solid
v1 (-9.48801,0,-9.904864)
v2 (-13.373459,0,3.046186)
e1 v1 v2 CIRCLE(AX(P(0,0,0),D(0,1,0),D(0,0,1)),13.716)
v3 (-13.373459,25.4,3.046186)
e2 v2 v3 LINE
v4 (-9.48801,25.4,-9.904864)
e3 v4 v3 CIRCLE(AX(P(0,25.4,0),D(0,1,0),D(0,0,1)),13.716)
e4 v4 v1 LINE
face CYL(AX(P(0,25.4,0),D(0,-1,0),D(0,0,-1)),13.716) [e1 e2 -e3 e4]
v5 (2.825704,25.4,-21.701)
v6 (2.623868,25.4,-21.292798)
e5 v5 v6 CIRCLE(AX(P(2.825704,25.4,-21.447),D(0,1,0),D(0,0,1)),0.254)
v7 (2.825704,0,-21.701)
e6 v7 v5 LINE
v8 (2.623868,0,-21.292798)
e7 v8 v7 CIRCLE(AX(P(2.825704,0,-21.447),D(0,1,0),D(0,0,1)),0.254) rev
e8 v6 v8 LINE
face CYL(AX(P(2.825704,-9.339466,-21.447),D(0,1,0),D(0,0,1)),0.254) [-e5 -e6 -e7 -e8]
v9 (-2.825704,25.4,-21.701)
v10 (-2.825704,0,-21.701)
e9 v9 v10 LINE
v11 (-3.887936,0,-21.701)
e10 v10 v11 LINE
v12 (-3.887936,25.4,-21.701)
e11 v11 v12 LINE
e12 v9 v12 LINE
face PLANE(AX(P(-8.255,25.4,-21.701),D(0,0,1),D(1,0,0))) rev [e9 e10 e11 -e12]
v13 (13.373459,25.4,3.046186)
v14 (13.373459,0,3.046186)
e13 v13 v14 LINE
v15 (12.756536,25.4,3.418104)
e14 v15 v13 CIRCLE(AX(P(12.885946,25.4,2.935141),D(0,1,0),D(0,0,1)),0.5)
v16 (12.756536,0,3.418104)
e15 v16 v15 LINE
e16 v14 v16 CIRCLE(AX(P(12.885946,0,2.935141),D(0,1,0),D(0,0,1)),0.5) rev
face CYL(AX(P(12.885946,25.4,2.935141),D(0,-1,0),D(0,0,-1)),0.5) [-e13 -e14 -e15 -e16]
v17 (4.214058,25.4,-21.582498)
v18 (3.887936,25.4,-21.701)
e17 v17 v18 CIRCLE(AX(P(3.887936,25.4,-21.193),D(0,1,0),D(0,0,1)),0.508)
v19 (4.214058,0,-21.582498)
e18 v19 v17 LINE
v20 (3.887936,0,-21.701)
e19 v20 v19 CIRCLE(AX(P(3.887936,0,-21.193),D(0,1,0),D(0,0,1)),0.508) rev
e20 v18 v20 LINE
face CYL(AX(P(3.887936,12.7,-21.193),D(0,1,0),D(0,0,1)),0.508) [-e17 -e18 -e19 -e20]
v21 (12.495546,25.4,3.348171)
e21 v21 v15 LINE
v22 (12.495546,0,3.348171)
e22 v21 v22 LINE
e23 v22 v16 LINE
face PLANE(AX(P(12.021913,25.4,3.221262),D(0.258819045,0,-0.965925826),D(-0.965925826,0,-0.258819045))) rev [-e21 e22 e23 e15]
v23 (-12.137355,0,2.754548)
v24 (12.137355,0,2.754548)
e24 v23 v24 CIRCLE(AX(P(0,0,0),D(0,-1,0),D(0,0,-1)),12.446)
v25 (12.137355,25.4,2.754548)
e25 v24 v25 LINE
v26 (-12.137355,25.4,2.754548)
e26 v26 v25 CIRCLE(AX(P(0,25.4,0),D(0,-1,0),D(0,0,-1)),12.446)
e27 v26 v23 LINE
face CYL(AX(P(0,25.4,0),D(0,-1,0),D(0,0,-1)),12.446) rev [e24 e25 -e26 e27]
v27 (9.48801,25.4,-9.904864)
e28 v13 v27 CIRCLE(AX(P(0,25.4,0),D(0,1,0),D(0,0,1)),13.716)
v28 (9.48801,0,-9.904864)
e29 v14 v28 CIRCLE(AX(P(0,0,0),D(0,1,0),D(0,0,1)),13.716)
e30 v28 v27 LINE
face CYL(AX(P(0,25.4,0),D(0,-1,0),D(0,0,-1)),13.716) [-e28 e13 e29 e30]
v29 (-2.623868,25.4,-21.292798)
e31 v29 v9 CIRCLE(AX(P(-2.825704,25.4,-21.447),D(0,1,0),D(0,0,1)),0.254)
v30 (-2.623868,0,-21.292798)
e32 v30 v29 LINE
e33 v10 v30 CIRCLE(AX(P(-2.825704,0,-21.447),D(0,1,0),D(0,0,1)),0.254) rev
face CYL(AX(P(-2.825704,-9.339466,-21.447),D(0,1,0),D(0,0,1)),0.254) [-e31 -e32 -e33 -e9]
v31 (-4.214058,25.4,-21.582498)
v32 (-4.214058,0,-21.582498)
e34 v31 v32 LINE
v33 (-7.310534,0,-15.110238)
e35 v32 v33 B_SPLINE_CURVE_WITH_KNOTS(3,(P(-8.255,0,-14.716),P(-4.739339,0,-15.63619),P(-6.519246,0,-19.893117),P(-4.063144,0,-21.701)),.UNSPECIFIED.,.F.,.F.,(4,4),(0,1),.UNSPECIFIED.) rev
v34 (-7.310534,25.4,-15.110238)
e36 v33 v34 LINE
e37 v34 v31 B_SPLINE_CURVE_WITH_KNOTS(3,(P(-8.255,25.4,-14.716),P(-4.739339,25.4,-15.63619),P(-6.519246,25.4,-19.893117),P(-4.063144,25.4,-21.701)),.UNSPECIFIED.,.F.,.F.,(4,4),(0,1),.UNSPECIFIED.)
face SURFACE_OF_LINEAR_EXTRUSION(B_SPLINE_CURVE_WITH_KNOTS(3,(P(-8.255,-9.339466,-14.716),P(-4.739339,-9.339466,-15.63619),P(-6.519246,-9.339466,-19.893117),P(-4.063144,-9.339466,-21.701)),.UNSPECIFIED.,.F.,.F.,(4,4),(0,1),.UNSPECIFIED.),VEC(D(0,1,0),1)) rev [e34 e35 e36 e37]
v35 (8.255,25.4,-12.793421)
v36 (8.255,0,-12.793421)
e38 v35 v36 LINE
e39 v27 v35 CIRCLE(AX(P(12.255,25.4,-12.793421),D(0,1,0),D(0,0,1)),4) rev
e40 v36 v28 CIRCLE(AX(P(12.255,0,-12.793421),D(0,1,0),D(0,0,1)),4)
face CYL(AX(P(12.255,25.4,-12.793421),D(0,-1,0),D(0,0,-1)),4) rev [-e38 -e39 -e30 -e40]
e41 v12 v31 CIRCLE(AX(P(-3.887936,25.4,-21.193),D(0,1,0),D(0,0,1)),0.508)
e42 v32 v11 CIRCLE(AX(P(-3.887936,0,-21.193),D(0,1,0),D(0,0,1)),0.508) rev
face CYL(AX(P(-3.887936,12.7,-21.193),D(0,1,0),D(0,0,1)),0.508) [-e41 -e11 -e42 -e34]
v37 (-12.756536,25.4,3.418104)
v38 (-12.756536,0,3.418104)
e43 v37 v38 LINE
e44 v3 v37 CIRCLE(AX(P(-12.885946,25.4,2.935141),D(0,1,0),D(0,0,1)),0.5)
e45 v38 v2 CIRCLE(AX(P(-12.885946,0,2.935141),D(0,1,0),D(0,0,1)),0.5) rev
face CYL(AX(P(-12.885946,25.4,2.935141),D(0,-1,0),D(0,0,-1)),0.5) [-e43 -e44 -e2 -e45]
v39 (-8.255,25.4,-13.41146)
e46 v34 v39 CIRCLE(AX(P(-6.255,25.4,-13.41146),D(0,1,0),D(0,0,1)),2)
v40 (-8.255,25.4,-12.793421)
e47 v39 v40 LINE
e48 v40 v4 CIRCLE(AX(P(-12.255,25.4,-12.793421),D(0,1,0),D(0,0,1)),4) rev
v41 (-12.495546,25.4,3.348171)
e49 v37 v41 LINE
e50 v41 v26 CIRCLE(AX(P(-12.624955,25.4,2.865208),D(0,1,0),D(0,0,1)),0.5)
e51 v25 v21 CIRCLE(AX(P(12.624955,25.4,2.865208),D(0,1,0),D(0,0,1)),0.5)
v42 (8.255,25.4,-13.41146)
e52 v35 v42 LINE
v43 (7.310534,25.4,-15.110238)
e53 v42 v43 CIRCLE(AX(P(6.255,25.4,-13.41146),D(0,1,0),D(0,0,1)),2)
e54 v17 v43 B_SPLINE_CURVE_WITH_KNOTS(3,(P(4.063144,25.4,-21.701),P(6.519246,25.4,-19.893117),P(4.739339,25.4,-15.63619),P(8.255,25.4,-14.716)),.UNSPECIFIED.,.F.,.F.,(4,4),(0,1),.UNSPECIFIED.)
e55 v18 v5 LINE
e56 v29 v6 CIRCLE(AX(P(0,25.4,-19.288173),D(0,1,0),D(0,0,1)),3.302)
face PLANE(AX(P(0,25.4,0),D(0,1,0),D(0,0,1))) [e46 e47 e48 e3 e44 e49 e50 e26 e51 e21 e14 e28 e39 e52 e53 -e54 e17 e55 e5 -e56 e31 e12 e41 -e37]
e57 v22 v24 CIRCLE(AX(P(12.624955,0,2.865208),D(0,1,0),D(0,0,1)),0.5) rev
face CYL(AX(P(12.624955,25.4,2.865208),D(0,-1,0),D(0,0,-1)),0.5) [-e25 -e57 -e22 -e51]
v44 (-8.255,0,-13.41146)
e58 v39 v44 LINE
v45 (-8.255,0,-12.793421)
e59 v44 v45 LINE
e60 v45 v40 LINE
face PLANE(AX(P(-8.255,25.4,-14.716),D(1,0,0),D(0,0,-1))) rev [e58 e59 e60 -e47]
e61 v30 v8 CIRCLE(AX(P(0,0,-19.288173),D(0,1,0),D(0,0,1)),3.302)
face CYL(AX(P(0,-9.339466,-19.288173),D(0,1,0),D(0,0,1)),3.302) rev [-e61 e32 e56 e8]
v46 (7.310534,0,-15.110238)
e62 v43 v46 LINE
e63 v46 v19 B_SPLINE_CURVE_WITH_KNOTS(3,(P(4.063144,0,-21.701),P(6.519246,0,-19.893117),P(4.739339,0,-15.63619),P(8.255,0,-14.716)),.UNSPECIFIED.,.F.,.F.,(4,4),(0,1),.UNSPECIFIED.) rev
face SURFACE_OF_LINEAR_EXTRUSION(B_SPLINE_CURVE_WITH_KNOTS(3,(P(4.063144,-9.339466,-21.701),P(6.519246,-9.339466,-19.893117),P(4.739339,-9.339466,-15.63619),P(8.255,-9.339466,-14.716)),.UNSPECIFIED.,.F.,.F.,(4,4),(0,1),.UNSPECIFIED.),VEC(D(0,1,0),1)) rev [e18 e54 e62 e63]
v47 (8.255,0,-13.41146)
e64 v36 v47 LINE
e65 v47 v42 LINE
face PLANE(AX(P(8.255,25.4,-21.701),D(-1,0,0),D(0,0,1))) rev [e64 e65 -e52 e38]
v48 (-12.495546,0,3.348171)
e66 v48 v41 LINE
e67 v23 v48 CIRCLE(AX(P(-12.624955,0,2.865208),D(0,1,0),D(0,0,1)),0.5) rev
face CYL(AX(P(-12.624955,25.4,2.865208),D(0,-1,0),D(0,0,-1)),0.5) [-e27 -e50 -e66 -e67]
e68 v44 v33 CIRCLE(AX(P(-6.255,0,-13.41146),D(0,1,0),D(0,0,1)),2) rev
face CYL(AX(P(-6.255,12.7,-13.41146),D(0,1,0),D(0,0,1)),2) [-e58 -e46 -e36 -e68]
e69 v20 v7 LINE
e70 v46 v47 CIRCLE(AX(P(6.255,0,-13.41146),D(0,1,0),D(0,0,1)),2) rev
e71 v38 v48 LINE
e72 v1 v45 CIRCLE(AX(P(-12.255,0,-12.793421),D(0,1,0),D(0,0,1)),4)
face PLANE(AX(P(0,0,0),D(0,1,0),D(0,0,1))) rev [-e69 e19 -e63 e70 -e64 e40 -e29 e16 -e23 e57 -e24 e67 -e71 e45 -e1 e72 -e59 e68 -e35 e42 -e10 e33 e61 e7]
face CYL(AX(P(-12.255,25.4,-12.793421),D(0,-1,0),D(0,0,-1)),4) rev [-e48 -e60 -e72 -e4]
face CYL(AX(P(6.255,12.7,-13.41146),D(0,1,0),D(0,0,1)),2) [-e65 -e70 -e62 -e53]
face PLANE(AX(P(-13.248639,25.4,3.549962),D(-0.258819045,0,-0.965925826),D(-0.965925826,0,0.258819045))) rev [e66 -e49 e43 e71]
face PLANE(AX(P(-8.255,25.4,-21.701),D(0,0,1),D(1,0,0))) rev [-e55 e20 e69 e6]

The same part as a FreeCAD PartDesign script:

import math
import FreeCAD as App
import Part
import Sketcher
from FreeCAD import Vector
Q = App.Units.Quantity


def edges_at(feature, points):
    """Names of the edges that pass closest to the given points."""
    edges = feature.Shape.Edges
    near = lambda p: min(range(len(edges)), key=lambda i: edges[i].distToShape(Part.Vertex(*p))[0])
    return sorted({f"Edge{near(p) + 1}" for p in points})

doc = App.newDocument("Part")
body = doc.addObject("PartDesign::Body", "Body")

sketch1 = body.newObject("Sketcher::SketchObject", "Sketch")
sketch1.AttachmentSupport = (doc.getObject("XZ_Plane"), [""])
sketch1.MapMode = "FlatFace"
sketch1.addGeometry([
    Part.LineSegment(Vector(-13.2, 3.5, 0), Vector(-12, 3.2, 0)),
    Part.ArcOfCircle(Part.Circle(Vector(0, 0, 0), Vector(0, 0, 1), 12.4), math.radians(165), math.radians(375)),
    Part.LineSegment(Vector(12, 3.2, 0), Vector(13.2, 3.5, 0)),
    Part.ArcOfCircle(Part.Circle(Vector(0, 0, 0), Vector(0, 0, 1), 13.7), math.radians(-53), math.radians(15)),
    Part.LineSegment(Vector(8.3, -11, 0), Vector(8.3, -21.7, 0)),
    Part.LineSegment(Vector(8.3, -21.7, 0), Vector(-8.3, -21.7, 0)),
    Part.LineSegment(Vector(-8.3, -21.7, 0), Vector(-8.3, -11, 0)),
    Part.ArcOfCircle(Part.Circle(Vector(0, 0, 0), Vector(0, 0, 1), 13.7), math.radians(165), math.radians(233)),
], False)
sketch1.addConstraint([
    Sketcher.Constraint("Coincident", 0, 2, 1, 1),
    Sketcher.Constraint("Coincident", 1, 2, 2, 1),
    Sketcher.Constraint("Coincident", 2, 2, 3, 2),
    Sketcher.Constraint("Coincident", 3, 1, 4, 1),
    Sketcher.Constraint("Coincident", 4, 2, 5, 1),
    Sketcher.Constraint("Coincident", 5, 2, 6, 1),
    Sketcher.Constraint("Coincident", 6, 2, 7, 2),
    Sketcher.Constraint("Coincident", 7, 1, 0, 1),
    Sketcher.Constraint("Vertical", 4),
    Sketcher.Constraint("Horizontal", 5),
    Sketcher.Constraint("Vertical", 6),
    Sketcher.Constraint("Coincident", 1, 3, -1, 1),
    Sketcher.Constraint("Coincident", 3, 3, -1, 1),
    Sketcher.Constraint("Coincident", 7, 3, -1, 1),
    Sketcher.Constraint("Equal", 3, 7),
    Sketcher.Constraint("Horizontal", 0, 2, 1, 2),
    Sketcher.Constraint("Horizontal", 3, 1, 6, 2),
    Sketcher.Constraint("Horizontal", 2, 2, 7, 1),
    Sketcher.Constraint("Radius", 1, Q("0.49 in")),
    Sketcher.Constraint("Radius", 3, Q("0.54 in")),
    Sketcher.Constraint("Angle", 0, Q("-15 deg")),
    Sketcher.Constraint("DistanceX", 5, 2, 5, 1, Q("0.65 in")),
    Sketcher.Constraint("DistanceX", -1, 1, 2, 2, Q("0.5215999 in")),
    Sketcher.Constraint("DistanceY", 4, 2, -1, 1, Q("21.701 mm")),
])
pad1 = body.newObject("PartDesign::Pad", "Pad")
pad1.Profile = sketch1
pad1.Length = Q("1 in")
pad1.Reversed = True

sketch2 = body.newObject("Sketcher::SketchObject", "Sketch001")
sketch2.AttachmentSupport = (doc.getObject("XZ_Plane"), [""])
sketch2.MapMode = "FlatFace"
sketch2.AttachmentOffset = App.Placement(Vector(0, 0, -1 * 25.4), App.Rotation())
sketch2.addGeometry([
    Part.Circle(Vector(0, -19.288173, 0), Vector(0, 0, 1), 3.302),
    Part.LineSegment(Vector(-8.255, -21.701, 0), Vector(-8.255, -14.716, 0)),
    Part.BSplineCurve([Vector(-8.255, -14.716, 0), Vector(-4.739339, -15.63619, 0), Vector(-6.519246, -19.893117, 0), Vector(-4.063144, -21.701, 0)], [4, 4], [0, 1], False, 3, [1, 1, 1, 1], False),
    Part.LineSegment(Vector(-4.063144, -21.701, 0), Vector(-8.255, -21.701, 0)),
    Part.LineSegment(Vector(8.255, -14.716, 0), Vector(8.255, -21.701, 0)),
    Part.LineSegment(Vector(8.255, -21.701, 0), Vector(4.063144, -21.701, 0)),
    Part.BSplineCurve([Vector(8.255, -14.716, 0), Vector(4.739339, -15.63619, 0), Vector(6.519246, -19.893117, 0), Vector(4.063144, -21.701, 0)], [4, 4], [0, 1], False, 3, [1, 1, 1, 1], False),
], False)
sketch2.addConstraint([
    Sketcher.Constraint("Block", 2),
    Sketcher.Constraint("Block", 6),
    Sketcher.Constraint("Coincident", 1, 2, 2, 1),
    Sketcher.Constraint("Coincident", 2, 2, 3, 1),
    Sketcher.Constraint("Coincident", 3, 2, 1, 1),
    Sketcher.Constraint("Coincident", 4, 2, 5, 1),
    Sketcher.Constraint("Coincident", 5, 2, 6, 2),
    Sketcher.Constraint("Coincident", 6, 1, 4, 1),
    Sketcher.Constraint("Vertical", 1),
    Sketcher.Constraint("Horizontal", 3),
    Sketcher.Constraint("Vertical", 4),
    Sketcher.Constraint("Horizontal", 5),
    Sketcher.Constraint("PointOnObject", 0, 3, -2),
    Sketcher.Constraint("Diameter", 0, Q("0.26 in")),
    Sketcher.Constraint("DistanceY", 0, 3, -1, 1, Q("19.288173 mm")),
])
pocket1 = body.newObject("PartDesign::Pocket", "Pocket")
pocket1.Profile = sketch2
pocket1.Length = Q("1 in")
pocket1.Reversed = True
doc.recompute()

fillet = body.newObject("PartDesign::Fillet", "Fillet")
fillet.Base = (pocket1, edges_at(pocket1, [(-4.063, 12.7, -21.701), (4.063, 12.7, -21.701)]))
fillet.Radius = Q("0.02 in")
doc.recompute()

fillet2 = body.newObject("PartDesign::Fillet", "Fillet001")
fillet2.Base = (fillet, edges_at(fillet, [(2.254, 12.7, -21.701), (-2.254, 12.7, -21.701)]))
fillet2.Radius = Q("0.01 in")
doc.recompute()

fillet3 = body.newObject("PartDesign::Fillet", "Fillet002")
fillet3.Base = (fillet2, edges_at(fillet2, [(-8.255, 12.7, -14.716), (8.255, 12.7, -14.716)]))
fillet3.Radius = 2
doc.recompute()

fillet4 = body.newObject("PartDesign::Fillet", "Fillet003")
fillet4.Base = (fillet3, edges_at(fillet3, [(-8.255, 12.7, -10.954), (8.255, 12.7, -10.954)]))
fillet4.Radius = 4
doc.recompute()

fillet5 = body.newObject("PartDesign::Fillet", "Fillet004")
fillet5.Base = (fillet4, edges_at(fillet4, [
    (13.249, 12.7, 3.55),
    (12.022, 12.7, 3.221),
    (-12.022, 12.7, 3.221),
    (-13.249, 12.7, 3.55),
]))
fillet5.Radius = 0.5

doc.recompute()
